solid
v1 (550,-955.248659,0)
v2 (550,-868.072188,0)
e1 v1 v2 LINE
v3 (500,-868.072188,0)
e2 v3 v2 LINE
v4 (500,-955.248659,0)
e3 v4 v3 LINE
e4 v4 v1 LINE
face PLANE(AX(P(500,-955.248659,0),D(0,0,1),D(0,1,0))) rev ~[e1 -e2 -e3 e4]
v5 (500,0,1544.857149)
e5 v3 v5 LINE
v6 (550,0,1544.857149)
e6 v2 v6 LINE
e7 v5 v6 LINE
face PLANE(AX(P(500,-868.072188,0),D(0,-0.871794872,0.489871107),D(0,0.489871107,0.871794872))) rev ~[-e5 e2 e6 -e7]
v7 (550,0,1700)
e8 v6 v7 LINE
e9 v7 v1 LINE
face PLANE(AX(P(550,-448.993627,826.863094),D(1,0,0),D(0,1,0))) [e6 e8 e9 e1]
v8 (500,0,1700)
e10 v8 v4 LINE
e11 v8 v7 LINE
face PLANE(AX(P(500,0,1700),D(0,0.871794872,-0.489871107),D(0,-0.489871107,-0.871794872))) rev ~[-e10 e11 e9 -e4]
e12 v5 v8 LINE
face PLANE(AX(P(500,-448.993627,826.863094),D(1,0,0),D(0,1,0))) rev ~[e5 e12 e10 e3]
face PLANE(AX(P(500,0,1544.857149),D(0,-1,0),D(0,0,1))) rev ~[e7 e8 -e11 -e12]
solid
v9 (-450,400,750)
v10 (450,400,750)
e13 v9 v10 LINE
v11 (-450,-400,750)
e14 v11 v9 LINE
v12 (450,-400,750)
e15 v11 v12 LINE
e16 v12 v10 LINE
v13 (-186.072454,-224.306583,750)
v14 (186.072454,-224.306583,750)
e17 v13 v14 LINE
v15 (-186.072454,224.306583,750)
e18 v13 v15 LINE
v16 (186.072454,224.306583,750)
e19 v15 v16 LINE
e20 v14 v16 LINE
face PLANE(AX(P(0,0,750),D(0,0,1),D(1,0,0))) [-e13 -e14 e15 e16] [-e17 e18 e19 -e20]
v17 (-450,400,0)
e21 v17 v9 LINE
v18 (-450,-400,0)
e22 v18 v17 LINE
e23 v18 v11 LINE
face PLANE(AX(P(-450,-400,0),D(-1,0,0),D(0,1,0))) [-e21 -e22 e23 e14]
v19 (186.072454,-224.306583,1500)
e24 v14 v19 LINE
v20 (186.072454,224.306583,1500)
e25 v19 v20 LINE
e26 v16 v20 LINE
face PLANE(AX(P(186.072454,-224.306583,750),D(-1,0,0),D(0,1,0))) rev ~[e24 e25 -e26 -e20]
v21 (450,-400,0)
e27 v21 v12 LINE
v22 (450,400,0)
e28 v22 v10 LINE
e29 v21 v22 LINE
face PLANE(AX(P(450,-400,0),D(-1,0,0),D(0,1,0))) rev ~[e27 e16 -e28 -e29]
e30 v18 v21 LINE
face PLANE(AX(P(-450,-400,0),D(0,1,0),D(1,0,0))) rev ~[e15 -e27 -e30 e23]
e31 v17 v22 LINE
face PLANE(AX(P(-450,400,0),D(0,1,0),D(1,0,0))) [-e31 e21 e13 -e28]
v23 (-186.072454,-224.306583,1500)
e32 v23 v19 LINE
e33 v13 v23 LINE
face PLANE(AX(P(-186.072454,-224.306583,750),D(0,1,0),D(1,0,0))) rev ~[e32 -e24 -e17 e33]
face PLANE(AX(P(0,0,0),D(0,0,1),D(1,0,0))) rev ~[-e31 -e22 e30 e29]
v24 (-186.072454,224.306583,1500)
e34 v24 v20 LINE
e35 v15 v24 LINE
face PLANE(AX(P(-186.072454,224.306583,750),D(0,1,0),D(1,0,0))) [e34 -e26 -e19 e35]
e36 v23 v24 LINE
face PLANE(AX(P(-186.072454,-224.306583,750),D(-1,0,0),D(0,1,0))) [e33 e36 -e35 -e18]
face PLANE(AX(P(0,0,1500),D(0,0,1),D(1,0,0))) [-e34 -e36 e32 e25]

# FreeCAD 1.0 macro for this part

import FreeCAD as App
import Part
import Sketcher

V = App.Vector
Q = App.Units.Quantity

doc = App.newDocument("Part")
body = doc.addObject("PartDesign::Body", "Body")

# Sketch on XY plane
sketch1 = doc.addObject("Sketcher::SketchObject", "Sketch")
body.addObject(sketch1)
sketch1.AttachmentSupport = (doc.XY_Plane, [""])
sketch1.MapMode = "FlatFace"
sketch1.addGeometry(Part.LineSegment(V(-450, 400, 0), V(-450, -400, 0)), False)
sketch1.addGeometry(Part.LineSegment(V(-450, -400, 0), V(450, -400, 0)), False)
sketch1.addGeometry(Part.LineSegment(V(450, -400, 0), V(450, 400, 0)), False)
sketch1.addGeometry(Part.LineSegment(V(450, 400, 0), V(-450, 400, 0)), False)
sketch1.addConstraint(Sketcher.Constraint("Coincident", 0, 2, 1, 1))
sketch1.addConstraint(Sketcher.Constraint("Coincident", 1, 2, 2, 1))
sketch1.addConstraint(Sketcher.Constraint("Coincident", 2, 2, 3, 1))
sketch1.addConstraint(Sketcher.Constraint("Coincident", 3, 2, 0, 1))
sketch1.addConstraint(Sketcher.Constraint("Vertical", 0))
sketch1.addConstraint(Sketcher.Constraint("Horizontal", 1))
sketch1.addConstraint(Sketcher.Constraint("Vertical", 2))
sketch1.addConstraint(Sketcher.Constraint("Horizontal", 3))
sketch1.addConstraint(Sketcher.Constraint("Symmetric", 0, 2, 2, 2, -1, 1))
sketch1.addConstraint(Sketcher.Constraint("DistanceX", 1, 1, 1, 2, Q("900 mm")))
sketch1.addConstraint(Sketcher.Constraint("DistanceY", 0, 2, 0, 1, Q("800 mm")))
pad1 = doc.addObject("PartDesign::Pad", "Pad")
body.addObject(pad1)
pad1.Profile = sketch1
pad1.Length = 750

# Sketch on XY plane
sketch2 = doc.addObject("Sketcher::SketchObject", "Sketch001")
body.addObject(sketch2)
sketch2.AttachmentSupport = (doc.XY_Plane, [""])
sketch2.MapMode = "FlatFace"
sketch2.AttachmentOffset = App.Placement(V(0, 0, 750), App.Rotation())
sketch2.addGeometry(Part.LineSegment(V(-186.072454, 224.306583, 0), V(-186.072454, -224.306583, 0)), False)
sketch2.addGeometry(Part.LineSegment(V(-186.072454, -224.306583, 0), V(186.072454, -224.306583, 0)), False)
sketch2.addGeometry(Part.LineSegment(V(186.072454, -224.306583, 0), V(186.072454, 224.306583, 0)), False)
sketch2.addGeometry(Part.LineSegment(V(186.072454, 224.306583, 0), V(-186.072454, 224.306583, 0)), False)
sketch2.addConstraint(Sketcher.Constraint("Coincident", 0, 2, 1, 1))
sketch2.addConstraint(Sketcher.Constraint("Coincident", 1, 2, 2, 1))
sketch2.addConstraint(Sketcher.Constraint("Coincident", 2, 2, 3, 1))
sketch2.addConstraint(Sketcher.Constraint("Coincident", 3, 2, 0, 1))
sketch2.addConstraint(Sketcher.Constraint("Vertical", 0))
sketch2.addConstraint(Sketcher.Constraint("Horizontal", 1))
sketch2.addConstraint(Sketcher.Constraint("Vertical", 2))
sketch2.addConstraint(Sketcher.Constraint("Horizontal", 3))
sketch2.addConstraint(Sketcher.Constraint("Symmetric", 0, 2, 2, 2, -1, 1))
sketch2.addConstraint(Sketcher.Constraint("DistanceX", 1, 1, 1, 2, Q("372.144908 mm")))
sketch2.addConstraint(Sketcher.Constraint("DistanceY", 0, 2, 0, 1, Q("448.613166 mm")))
pad2 = doc.addObject("PartDesign::Pad", "Pad001")
body.addObject(pad2)
pad2.Profile = sketch2
pad2.Length = 750
body2 = doc.addObject("PartDesign::Body", "Body001")

# Sketch on YZ plane
sketch3 = doc.addObject("Sketcher::SketchObject", "Sketch002")
body2.addObject(sketch3)
sketch3.AttachmentSupport = (doc.getObject("YZ_Plane001"), [""])
sketch3.MapMode = "FlatFace"
sketch3.AttachmentOffset = App.Placement(V(0, 0, 500), App.Rotation())
sketch3.addGeometry(Part.LineSegment(V(0, 1700, 0), V(-955.248659, 0, 0)), False)
sketch3.addGeometry(Part.LineSegment(V(-955.248659, 0, 0), V(-868.072188, 0, 0)), False)
sketch3.addGeometry(Part.LineSegment(V(-868.072188, 0, 0), V(0, 1544.857149, 0)), False)
sketch3.addGeometry(Part.LineSegment(V(0, 1544.857149, 0), V(0, 1700, 0)), False)
sketch3.addConstraint(Sketcher.Constraint("Coincident", 0, 2, 1, 1))
sketch3.addConstraint(Sketcher.Constraint("Coincident", 1, 2, 2, 1))
sketch3.addConstraint(Sketcher.Constraint("Coincident", 2, 2, 3, 1))
sketch3.addConstraint(Sketcher.Constraint("Coincident", 3, 2, 0, 1))
sketch3.addConstraint(Sketcher.Constraint("Horizontal", 1))
sketch3.addConstraint(Sketcher.Constraint("Vertical", 3))
sketch3.addConstraint(Sketcher.Constraint("PointOnObject", 0, 2, -1))
sketch3.addConstraint(Sketcher.Constraint("PointOnObject", 2, 2, -2))
sketch3.addConstraint(Sketcher.Constraint("Parallel", 0, 2))
sketch3.addConstraint(Sketcher.Constraint("Distance", 0, Q("1950 mm")))
sketch3.addConstraint(Sketcher.Constraint("DistanceY", -1, 1, 3, 2, Q("1700 mm")))
sketch3.addConstraint(Sketcher.Constraint("DistanceX", 1, 1, 1, 2, Q("87.176471 mm")))
pad3 = doc.addObject("PartDesign::Pad", "Pad002")
body2.addObject(pad3)
pad3.Profile = sketch3
pad3.Length = 50

doc.recompute()
